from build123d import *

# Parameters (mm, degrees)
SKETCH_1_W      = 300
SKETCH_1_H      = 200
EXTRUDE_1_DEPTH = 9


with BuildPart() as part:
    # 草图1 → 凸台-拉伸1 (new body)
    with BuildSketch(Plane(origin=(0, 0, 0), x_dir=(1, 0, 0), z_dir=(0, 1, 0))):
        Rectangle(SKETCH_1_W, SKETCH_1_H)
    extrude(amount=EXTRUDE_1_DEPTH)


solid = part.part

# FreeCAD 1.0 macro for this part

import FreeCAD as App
import Part
import Sketcher

V = App.Vector


def add_polygon(sketch, points):
    """Adds a closed chain of lines whose ends are joined by coincident constraints."""
    first, n = sketch.GeometryCount, len(points)
    for a, b in zip(points, points[1:] + points[:1]):
        sketch.addGeometry(Part.LineSegment(App.Vector(*a, 0), App.Vector(*b, 0)), False)
    for i in range(n):
        sketch.addConstraint(Sketcher.Constraint("Coincident", first + i, 2, first + (i + 1) % n, 1))

doc = App.newDocument("Part")
body = doc.addObject("PartDesign::Body", "Body")

# Sketch on XZ plane
sketch1 = body.newObject("Sketcher::SketchObject", "Sketch")
sketch1.AttachmentSupport = (doc.getObject("XZ_Plane"), [""])
sketch1.MapMode = "FlatFace"
add_polygon(sketch1, [(-150, -100), (-150, 100), (150, 100), (150, -100)])  # lines 0-3
sketch1.addConstraint([
    Sketcher.Constraint("Vertical", 0),
    Sketcher.Constraint("Horizontal", 1),
    Sketcher.Constraint("Vertical", 2),
    Sketcher.Constraint("Horizontal", 3),
    Sketcher.Constraint("Symmetric", 0, 2, 2, 2, -1, 1),
    Sketcher.Constraint("DistanceX", 1, 1, 1, 2, 300.0),
    Sketcher.Constraint("DistanceY", 0, 1, 0, 2, 200.0),
])
pad1 = body.newObject("PartDesign::Pad", "Pad")
pad1.Profile = sketch1
pad1.Length = 9
pad1.Reversed = True

doc.recompute()
